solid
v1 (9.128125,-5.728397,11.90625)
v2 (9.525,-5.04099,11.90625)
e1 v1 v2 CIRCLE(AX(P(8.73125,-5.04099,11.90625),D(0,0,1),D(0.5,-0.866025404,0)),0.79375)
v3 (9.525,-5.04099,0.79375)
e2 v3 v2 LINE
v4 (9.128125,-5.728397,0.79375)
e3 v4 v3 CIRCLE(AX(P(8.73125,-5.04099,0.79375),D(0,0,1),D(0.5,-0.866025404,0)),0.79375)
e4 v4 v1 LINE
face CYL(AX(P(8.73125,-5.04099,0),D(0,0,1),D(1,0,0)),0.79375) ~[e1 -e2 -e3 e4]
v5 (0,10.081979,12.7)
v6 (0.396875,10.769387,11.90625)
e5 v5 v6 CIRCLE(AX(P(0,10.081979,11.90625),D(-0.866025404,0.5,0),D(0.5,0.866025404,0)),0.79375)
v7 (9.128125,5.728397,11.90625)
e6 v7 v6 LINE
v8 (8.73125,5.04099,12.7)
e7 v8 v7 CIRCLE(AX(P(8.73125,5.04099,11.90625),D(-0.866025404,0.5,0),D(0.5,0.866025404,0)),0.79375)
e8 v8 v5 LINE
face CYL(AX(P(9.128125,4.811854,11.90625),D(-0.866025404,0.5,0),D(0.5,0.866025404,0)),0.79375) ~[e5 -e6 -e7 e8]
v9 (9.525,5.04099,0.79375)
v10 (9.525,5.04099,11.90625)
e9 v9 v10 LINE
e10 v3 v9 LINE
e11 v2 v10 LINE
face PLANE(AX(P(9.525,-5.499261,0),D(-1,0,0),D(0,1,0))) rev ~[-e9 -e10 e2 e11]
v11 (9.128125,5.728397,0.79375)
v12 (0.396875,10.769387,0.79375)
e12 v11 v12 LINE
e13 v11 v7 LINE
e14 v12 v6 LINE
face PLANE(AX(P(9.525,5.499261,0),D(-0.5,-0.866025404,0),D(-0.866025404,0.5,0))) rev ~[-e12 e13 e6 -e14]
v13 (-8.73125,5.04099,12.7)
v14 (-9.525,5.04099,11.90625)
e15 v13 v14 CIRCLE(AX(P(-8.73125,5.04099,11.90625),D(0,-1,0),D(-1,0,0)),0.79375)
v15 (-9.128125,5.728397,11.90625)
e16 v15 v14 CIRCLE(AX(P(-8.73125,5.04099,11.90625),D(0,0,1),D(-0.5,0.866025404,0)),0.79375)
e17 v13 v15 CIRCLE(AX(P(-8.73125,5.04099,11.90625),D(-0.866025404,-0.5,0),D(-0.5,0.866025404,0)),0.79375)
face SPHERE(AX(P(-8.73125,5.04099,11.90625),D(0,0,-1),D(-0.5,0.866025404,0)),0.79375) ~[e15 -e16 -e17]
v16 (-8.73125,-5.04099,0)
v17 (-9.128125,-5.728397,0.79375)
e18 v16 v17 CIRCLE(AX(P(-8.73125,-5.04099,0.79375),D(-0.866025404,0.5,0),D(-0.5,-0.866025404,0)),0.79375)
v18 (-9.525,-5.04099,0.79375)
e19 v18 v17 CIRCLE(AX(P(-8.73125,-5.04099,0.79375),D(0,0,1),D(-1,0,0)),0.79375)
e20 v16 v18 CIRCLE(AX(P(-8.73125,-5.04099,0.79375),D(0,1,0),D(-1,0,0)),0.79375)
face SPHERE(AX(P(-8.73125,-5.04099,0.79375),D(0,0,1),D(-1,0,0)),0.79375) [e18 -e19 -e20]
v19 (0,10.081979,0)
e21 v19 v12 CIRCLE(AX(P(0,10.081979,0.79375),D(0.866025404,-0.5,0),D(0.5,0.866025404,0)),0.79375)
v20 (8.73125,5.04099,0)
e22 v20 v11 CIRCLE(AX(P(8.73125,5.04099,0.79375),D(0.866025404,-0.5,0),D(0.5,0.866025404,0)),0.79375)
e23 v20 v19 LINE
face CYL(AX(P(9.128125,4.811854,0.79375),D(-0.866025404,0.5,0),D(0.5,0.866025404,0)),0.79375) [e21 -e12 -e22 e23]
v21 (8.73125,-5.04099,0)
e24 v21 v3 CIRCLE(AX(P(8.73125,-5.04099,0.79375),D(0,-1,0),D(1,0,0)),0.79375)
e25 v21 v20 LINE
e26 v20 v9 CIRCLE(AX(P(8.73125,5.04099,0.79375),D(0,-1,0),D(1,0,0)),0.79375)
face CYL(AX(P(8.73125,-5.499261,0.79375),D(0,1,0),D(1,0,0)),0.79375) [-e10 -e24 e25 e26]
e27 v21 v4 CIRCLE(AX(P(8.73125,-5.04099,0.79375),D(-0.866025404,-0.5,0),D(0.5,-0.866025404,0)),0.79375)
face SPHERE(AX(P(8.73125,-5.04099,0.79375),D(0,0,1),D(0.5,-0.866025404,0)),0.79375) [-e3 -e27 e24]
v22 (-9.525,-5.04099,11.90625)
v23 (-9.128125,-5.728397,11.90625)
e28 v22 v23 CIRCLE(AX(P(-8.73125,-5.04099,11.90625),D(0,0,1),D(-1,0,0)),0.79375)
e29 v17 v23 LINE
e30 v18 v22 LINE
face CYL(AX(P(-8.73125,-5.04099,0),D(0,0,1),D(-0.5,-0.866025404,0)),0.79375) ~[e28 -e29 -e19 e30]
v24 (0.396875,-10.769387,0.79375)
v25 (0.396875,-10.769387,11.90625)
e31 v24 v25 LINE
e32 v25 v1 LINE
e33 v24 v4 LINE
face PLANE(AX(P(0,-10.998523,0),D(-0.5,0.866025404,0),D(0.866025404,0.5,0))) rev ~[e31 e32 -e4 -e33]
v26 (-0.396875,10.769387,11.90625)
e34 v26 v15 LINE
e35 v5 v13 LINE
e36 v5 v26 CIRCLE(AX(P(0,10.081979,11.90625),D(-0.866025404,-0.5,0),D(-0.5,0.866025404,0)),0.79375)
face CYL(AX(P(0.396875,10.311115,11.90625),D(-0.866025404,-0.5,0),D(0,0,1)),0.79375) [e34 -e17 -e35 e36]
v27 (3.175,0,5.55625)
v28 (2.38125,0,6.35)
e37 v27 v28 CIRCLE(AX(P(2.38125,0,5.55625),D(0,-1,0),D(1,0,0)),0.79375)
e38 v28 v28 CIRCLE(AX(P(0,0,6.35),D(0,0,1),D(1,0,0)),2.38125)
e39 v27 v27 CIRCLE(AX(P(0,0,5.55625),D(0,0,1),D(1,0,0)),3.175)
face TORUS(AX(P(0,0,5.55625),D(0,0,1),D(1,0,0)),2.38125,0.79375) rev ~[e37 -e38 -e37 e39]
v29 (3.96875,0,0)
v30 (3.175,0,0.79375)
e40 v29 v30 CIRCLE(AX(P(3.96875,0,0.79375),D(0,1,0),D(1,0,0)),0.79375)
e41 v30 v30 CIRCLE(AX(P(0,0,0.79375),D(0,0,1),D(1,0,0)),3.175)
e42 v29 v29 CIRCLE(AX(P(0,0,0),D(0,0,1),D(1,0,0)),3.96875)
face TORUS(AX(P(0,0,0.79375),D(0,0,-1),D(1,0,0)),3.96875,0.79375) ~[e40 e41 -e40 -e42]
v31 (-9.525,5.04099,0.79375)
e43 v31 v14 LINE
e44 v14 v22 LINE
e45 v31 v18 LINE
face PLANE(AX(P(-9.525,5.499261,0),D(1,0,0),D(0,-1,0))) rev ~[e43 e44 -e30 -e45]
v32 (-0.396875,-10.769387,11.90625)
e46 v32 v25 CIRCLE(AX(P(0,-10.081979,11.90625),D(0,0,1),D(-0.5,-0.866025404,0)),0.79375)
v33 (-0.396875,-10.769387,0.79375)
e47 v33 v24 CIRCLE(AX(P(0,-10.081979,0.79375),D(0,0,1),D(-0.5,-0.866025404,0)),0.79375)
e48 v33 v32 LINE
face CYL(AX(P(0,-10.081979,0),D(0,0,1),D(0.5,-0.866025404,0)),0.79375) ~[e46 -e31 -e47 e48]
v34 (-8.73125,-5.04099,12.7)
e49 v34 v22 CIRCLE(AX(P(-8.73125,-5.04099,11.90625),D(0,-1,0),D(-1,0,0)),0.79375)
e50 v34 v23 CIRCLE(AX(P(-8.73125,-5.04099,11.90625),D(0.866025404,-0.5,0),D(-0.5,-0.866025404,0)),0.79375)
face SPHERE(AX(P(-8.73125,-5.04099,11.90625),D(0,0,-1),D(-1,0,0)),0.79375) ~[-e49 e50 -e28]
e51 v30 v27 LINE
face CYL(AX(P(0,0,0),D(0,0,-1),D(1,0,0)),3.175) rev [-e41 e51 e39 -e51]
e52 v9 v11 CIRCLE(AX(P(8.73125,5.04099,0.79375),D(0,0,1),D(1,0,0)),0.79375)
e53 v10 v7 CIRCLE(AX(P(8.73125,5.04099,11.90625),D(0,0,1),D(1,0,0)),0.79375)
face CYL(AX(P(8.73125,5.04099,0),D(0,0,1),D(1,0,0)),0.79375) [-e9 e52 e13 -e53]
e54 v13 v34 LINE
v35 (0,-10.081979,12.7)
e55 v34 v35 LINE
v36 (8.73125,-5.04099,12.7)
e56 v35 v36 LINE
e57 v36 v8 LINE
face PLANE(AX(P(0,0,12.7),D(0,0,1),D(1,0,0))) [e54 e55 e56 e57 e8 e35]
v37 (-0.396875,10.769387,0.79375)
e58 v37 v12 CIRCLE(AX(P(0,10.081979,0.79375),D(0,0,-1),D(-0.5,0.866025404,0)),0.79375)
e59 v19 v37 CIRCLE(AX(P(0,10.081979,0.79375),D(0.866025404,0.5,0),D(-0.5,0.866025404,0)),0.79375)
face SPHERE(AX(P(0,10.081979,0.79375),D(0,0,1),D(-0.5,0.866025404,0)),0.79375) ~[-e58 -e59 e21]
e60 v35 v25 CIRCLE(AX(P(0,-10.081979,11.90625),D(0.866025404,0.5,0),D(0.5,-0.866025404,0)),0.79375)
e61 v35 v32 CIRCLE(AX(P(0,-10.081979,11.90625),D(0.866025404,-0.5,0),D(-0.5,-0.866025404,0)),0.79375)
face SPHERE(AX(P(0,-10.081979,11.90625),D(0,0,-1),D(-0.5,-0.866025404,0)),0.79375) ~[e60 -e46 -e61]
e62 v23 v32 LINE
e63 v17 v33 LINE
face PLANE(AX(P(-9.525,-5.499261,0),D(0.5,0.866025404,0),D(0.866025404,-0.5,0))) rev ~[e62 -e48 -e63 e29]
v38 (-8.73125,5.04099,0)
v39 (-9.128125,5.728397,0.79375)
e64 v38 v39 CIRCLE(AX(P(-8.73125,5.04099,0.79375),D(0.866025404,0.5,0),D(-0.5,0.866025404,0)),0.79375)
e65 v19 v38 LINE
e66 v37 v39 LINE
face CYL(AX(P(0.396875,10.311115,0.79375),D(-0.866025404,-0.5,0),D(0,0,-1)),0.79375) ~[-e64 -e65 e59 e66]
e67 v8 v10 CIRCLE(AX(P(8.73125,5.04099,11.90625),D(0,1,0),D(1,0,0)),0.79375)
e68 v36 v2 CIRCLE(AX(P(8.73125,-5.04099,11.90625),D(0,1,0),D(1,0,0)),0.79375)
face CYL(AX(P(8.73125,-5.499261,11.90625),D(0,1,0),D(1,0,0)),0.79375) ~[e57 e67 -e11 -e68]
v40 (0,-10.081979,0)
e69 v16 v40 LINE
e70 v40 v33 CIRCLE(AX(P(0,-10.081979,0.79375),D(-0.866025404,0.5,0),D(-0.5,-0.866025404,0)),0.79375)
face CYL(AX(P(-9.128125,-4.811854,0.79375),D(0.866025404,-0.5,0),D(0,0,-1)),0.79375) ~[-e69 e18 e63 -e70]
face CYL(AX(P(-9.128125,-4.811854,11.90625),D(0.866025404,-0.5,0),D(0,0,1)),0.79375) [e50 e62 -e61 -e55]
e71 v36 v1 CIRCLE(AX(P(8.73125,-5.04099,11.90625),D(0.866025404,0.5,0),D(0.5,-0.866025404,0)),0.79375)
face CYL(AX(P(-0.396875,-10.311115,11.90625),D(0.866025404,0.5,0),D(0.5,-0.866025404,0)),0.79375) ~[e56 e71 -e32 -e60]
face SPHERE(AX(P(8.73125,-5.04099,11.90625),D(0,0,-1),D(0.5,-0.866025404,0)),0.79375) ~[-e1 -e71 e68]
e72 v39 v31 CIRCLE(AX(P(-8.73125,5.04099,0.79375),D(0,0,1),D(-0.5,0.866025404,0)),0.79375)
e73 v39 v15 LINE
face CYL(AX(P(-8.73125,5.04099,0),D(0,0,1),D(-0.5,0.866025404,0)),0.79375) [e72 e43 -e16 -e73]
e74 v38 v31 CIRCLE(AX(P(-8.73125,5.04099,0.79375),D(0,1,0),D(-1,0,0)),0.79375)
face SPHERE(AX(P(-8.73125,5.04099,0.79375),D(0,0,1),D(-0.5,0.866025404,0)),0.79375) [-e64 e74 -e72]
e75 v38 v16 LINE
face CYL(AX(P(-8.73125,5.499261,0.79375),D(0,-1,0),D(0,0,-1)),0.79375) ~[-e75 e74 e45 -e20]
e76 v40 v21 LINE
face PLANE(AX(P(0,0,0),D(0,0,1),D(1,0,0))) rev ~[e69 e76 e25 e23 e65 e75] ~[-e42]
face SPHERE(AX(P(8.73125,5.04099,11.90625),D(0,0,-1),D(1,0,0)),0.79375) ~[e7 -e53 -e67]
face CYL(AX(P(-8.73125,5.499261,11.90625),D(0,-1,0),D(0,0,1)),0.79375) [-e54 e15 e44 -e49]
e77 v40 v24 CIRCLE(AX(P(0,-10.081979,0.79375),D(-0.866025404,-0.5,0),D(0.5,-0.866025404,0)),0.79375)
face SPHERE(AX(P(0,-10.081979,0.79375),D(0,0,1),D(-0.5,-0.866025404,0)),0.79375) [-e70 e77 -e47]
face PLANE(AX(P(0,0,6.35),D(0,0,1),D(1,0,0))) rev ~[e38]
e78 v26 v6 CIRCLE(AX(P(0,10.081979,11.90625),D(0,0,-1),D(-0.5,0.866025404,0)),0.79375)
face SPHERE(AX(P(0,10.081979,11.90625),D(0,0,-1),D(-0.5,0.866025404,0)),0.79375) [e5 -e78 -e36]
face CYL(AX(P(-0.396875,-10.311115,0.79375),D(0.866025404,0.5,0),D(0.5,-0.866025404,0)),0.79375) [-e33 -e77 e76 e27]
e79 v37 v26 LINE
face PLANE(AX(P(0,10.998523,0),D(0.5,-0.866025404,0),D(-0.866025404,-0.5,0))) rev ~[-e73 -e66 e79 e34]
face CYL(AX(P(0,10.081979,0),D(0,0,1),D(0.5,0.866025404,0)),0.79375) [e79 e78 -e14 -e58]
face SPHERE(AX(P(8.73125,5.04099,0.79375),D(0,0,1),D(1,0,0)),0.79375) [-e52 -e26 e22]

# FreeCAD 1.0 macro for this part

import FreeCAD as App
import Part
import Sketcher
from FreeCAD import Vector
Q = App.Units.Quantity


def add_polygon(sketch, points):
    """Adds a closed chain of lines whose ends are joined by coincident constraints."""
    first, n = sketch.GeometryCount, len(points)
    for a, b in zip(points, points[1:] + points[:1]):
        sketch.addGeometry(Part.LineSegment(App.Vector(*a, 0), App.Vector(*b, 0)), False)
    for i in range(n):
        sketch.addConstraint(Sketcher.Constraint("Coincident", first + i, 2, first + (i + 1) % n, 1))

doc = App.newDocument("Part")
params = doc.addObject("Spreadsheet::Sheet", "Params")
for row, (alias, value) in enumerate([
    ("pad1_length", "0.5 in"),
    ("sketch2_diameter", "0.25 in"),
    ("pocket1_length", "0.25 in"),
    ("fillet_radius", "0.03125 in"),
], start=1):
    params.set(f"A{row}", alias)
    params.set(f"B{row}", "=" + value)
    params.setAlias(f"B{row}", alias)

body = doc.addObject("PartDesign::Body", "Body")

# Sketch on XY plane
sketch1 = body.newObject("Sketcher::SketchObject", "Sketch")
sketch1.AttachmentSupport = (doc.getObject("XY_Plane"), [""])
sketch1.MapMode = "FlatFace"
add_polygon(sketch1, [(10, -5), (10, 5), (0, 11), (-10, 5), (-10, -5), (0, -11)])  # lines 0-5
sketch1.addConstraint([
    Sketcher.Constraint("Vertical", 0),
    Sketcher.Constraint("Vertical", 3),
    Sketcher.Constraint("Symmetric", 0, 2, 3, 2, -1, 1),
    Sketcher.Constraint("Symmetric", 1, 2, 4, 2, -1, 1),
    Sketcher.Constraint("PointOnObject", 1, 2, -2),
    Sketcher.Constraint("Parallel", 2, 5),
    Sketcher.Constraint("Horizontal", 0, 2, 2, 2),
    Sketcher.Constraint("Angle", 1, Q("150 deg")),
    Sketcher.Constraint("DistanceX", 2, 2, 0, 2, Q("0.75 in")),
    Sketcher.Constraint("DistanceY", 0, 1, 0, 2, 10.998523),
])
pad1 = body.newObject("PartDesign::Pad", "Pad")
pad1.Profile = sketch1
pad1.setExpression("Length", "Params.pad1_length")

# Sketch on XY plane
sketch2 = body.newObject("Sketcher::SketchObject", "Sketch001")
sketch2.AttachmentSupport = (doc.getObject("XY_Plane"), [""])
sketch2.MapMode = "FlatFace"
sketch2.addGeometry(Part.Circle(Vector(0, 0, 0), Vector(0, 0, 1), 3.2), False)
sketch2.addConstraint([
    Sketcher.Constraint("Coincident", 0, 3, -1, 1),
    Sketcher.Constraint("Diameter", 0, Q("0.25 in")),
])
sketch2.setExpression("Constraints[1]", "Params.sketch2_diameter")
pocket1 = body.newObject("PartDesign::Pocket", "Pocket")
pocket1.Profile = sketch2
pocket1.setExpression("Length", "Params.pocket1_length")
pocket1.Reversed = True
doc.recompute()

fillet = body.newObject("PartDesign::Fillet", "Fillet")
fillet.Base = (pocket1, ["Edge1"])
fillet.UseAllEdges = True
fillet.setExpression("Radius", "Params.fillet_radius")

doc.recompute()
